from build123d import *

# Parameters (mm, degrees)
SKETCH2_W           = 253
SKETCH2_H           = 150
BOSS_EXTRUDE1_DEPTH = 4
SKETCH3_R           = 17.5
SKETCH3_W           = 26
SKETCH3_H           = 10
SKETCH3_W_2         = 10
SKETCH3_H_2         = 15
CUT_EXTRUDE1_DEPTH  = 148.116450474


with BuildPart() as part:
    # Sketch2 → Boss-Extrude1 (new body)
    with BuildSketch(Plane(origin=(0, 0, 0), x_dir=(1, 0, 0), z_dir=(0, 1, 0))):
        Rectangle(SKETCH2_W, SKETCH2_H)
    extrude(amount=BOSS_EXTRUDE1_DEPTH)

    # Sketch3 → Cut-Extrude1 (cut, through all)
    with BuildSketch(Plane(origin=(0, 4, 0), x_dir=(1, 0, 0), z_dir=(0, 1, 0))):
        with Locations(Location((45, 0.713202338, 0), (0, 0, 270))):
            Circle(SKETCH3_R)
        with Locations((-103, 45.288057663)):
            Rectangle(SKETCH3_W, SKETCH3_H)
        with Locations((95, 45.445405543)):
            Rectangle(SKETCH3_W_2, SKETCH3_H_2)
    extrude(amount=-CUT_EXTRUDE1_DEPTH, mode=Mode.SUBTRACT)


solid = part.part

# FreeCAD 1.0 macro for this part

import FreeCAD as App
import Part
import Sketcher
from FreeCAD import Vector

doc = App.newDocument("Part")
body = doc.addObject("PartDesign::Body", "Body")

sketch1 = doc.addObject("Sketcher::SketchObject", "Sketch")
body.addObject(sketch1)
sketch1.AttachmentSupport = (doc.XZ_Plane, [""])
sketch1.MapMode = "FlatFace"
sketch1.addGeometry([
    Part.LineSegment(Vector(-126, -75, 0), Vector(-126, 75, 0)),
    Part.LineSegment(Vector(-126, 75, 0), Vector(126, 75, 0)),
    Part.LineSegment(Vector(126, 75, 0), Vector(126, -75, 0)),
    Part.LineSegment(Vector(126, -75, 0), Vector(-126, -75, 0)),
], False)
sketch1.addConstraint([
    Sketcher.Constraint("Coincident", 0, 2, 1, 1),
    Sketcher.Constraint("Coincident", 1, 2, 2, 1),
    Sketcher.Constraint("Coincident", 2, 2, 3, 1),
    Sketcher.Constraint("Coincident", 3, 2, 0, 1),
    Sketcher.Constraint("Vertical", 0),
    Sketcher.Constraint("Horizontal", 1),
    Sketcher.Constraint("Vertical", 2),
    Sketcher.Constraint("Horizontal", 3),
    Sketcher.Constraint("Symmetric", 0, 2, 2, 2, -1, 1),
    Sketcher.Constraint("DistanceX", 1, 1, 1, 2, 253.0),
    Sketcher.Constraint("DistanceY", 0, 1, 0, 2, 150.0),
])
pad1 = doc.addObject("PartDesign::Pad", "Pad")
body.addObject(pad1)
pad1.Profile = sketch1
pad1.Length = 4
pad1.Reversed = True

sketch2 = doc.addObject("Sketcher::SketchObject", "Sketch001")
body.addObject(sketch2)
sketch2.AttachmentSupport = (doc.XZ_Plane, [""])
sketch2.MapMode = "FlatFace"
sketch2.AttachmentOffset = App.Placement(Vector(0, 0, -4), App.Rotation())
sketch2.addGeometry([
    Part.Circle(Vector(45, -1, 0), Vector(0, 0, 1), 18),
    Part.LineSegment(Vector(-116, -50, 0), Vector(-116, -40, 0)),
    Part.LineSegment(Vector(-116, -40, 0), Vector(-90, -40, 0)),
    Part.LineSegment(Vector(-90, -40, 0), Vector(-90, -50, 0)),
    Part.LineSegment(Vector(-90, -50, 0), Vector(-116, -50, 0)),
    Part.LineSegment(Vector(90, -53, 0), Vector(90, -38, 0)),
    Part.LineSegment(Vector(90, -38, 0), Vector(100, -38, 0)),
    Part.LineSegment(Vector(100, -38, 0), Vector(100, -53, 0)),
    Part.LineSegment(Vector(100, -53, 0), Vector(90, -53, 0)),
], False)
sketch2.addConstraint([
    Sketcher.Constraint("Coincident", 1, 2, 2, 1),
    Sketcher.Constraint("Coincident", 2, 2, 3, 1),
    Sketcher.Constraint("Coincident", 3, 2, 4, 1),
    Sketcher.Constraint("Coincident", 4, 2, 1, 1),
    Sketcher.Constraint("Coincident", 5, 2, 6, 1),
    Sketcher.Constraint("Coincident", 6, 2, 7, 1),
    Sketcher.Constraint("Coincident", 7, 2, 8, 1),
    Sketcher.Constraint("Coincident", 8, 2, 5, 1),
    Sketcher.Constraint("Vertical", 1),
    Sketcher.Constraint("Horizontal", 2),
    Sketcher.Constraint("Vertical", 3),
    Sketcher.Constraint("Horizontal", 4),
    Sketcher.Constraint("Vertical", 5),
    Sketcher.Constraint("Horizontal", 6),
    Sketcher.Constraint("Vertical", 7),
    Sketcher.Constraint("Horizontal", 8),
    Sketcher.Constraint("Equal", 8, 1),
    Sketcher.Constraint("Diameter", 0, 35.0),
    Sketcher.Constraint("DistanceX", 2, 1, 2, 2, 26.0),
    Sketcher.Constraint("DistanceX", 6, 1, 6, 2, 10.0),
    Sketcher.Constraint("DistanceY", 5, 1, 5, 2, 15.0),
    Sketcher.Constraint("DistanceX", -1, 1, 0, 3, 45.0),
    Sketcher.Constraint("DistanceX", 1, 2, -1, 1, 116.0),
    Sketcher.Constraint("DistanceX", -1, 1, 5, 2, 90.0),
    Sketcher.Constraint("DistanceY", 0, 3, -1, 1, 0.713202),
    Sketcher.Constraint("DistanceY", 1, 2, -1, 1, 40.288058),
    Sketcher.Constraint("DistanceY", 5, 2, -1, 1, 37.945406),
])
pocket1 = doc.addObject("PartDesign::Pocket", "Pocket")
body.addObject(pocket1)
pocket1.Profile = sketch2
pocket1.Type = "ThroughAll"
pocket1.Reversed = True

doc.recompute()
